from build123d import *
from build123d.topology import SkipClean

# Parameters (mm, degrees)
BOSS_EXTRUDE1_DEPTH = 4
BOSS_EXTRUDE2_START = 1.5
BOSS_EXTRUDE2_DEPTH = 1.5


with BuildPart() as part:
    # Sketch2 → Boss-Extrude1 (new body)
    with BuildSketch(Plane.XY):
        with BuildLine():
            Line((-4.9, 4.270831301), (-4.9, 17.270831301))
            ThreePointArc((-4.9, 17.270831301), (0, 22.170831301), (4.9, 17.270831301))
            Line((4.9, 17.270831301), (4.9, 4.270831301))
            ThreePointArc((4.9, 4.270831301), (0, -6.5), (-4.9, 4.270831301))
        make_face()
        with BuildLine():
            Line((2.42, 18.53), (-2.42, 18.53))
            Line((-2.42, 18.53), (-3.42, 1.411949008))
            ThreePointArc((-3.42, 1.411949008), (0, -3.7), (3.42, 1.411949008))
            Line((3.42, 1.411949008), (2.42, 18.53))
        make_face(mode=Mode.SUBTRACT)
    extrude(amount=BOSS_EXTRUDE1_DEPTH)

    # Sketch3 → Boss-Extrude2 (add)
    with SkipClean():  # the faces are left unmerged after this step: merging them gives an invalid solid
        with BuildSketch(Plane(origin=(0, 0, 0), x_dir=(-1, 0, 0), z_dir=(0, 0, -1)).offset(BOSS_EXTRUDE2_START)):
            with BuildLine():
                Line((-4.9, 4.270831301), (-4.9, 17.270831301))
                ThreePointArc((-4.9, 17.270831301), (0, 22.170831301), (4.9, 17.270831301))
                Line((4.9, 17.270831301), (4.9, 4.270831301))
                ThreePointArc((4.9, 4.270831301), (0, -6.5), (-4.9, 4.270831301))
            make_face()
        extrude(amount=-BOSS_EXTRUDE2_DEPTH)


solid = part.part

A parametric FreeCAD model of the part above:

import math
import FreeCAD as App
import Part
import Sketcher
from FreeCAD import Vector
Q = App.Units.Quantity

doc = App.newDocument("Part")
body = doc.addObject("PartDesign::Body", "Body")

# Sketch on XY plane
sketch1 = body.newObject("Sketcher::SketchObject", "Sketch")
sketch1.AttachmentSupport = (doc.getObject("XY_Plane"), [""])
sketch1.MapMode = "FlatFace"
sketch1.addGeometry(Part.LineSegment(Vector(-4.9, 17.3, 0), Vector(-4.9, 4.3, 0)), False)
sketch1.addGeometry(Part.ArcOfCircle(Part.Circle(Vector(0, 0, 0), Vector(0, 0, 1), 6.5), math.radians(139), math.radians(401)), False)
sketch1.addGeometry(Part.LineSegment(Vector(4.9, 4.3, 0), Vector(4.9, 17.3, 0)), False)
sketch1.addGeometry(Part.ArcOfCircle(Part.Circle(Vector(0, 17.3, 0), Vector(0, 0, 1), 4.9), math.radians(0), math.radians(180)), False)
sketch1.addGeometry(Part.LineSegment(Vector(2.4, 18.5, 0), Vector(3.4, 1.4, 0)), False)
sketch1.addGeometry(Part.ArcOfCircle(Part.Circle(Vector(0, 0, 0), Vector(0, 0, 1), 3.7), math.radians(158), math.radians(382)), False)
sketch1.addGeometry(Part.LineSegment(Vector(-3.4, 1.4, 0), Vector(-2.4, 18.5, 0)), False)
sketch1.addGeometry(Part.LineSegment(Vector(-2.4, 18.5, 0), Vector(2.4, 18.5, 0)), False)
sketch1.addConstraint(Sketcher.Constraint("Coincident", 0, 2, 1, 1))
sketch1.addConstraint(Sketcher.Constraint("Coincident", 1, 2, 2, 1))
sketch1.addConstraint(Sketcher.Constraint("Tangent", 2, 2, 3, 1))
sketch1.addConstraint(Sketcher.Constraint("Tangent", 3, 2, 0, 1))
sketch1.addConstraint(Sketcher.Constraint("Coincident", 4, 2, 5, 2))
sketch1.addConstraint(Sketcher.Constraint("Coincident", 5, 1, 6, 1))
sketch1.addConstraint(Sketcher.Constraint("Coincident", 6, 2, 7, 1))
sketch1.addConstraint(Sketcher.Constraint("Coincident", 7, 2, 4, 1))
sketch1.addConstraint(Sketcher.Constraint("Vertical", 0))
sketch1.addConstraint(Sketcher.Constraint("Vertical", 2))
sketch1.addConstraint(Sketcher.Constraint("Horizontal", 7))
sketch1.addConstraint(Sketcher.Constraint("Coincident", 1, 3, -1, 1))
sketch1.addConstraint(Sketcher.Constraint("Coincident", 5, 3, -1, 1))
sketch1.addConstraint(Sketcher.Constraint("PointOnObject", 3, 3, -2))
sketch1.addConstraint(Sketcher.Constraint("Horizontal", 4, 2, 5, 1))
sketch1.addConstraint(Sketcher.Constraint("Equal", 4, 6))
sketch1.addConstraint(Sketcher.Constraint("Radius", 1, Q("6.5 mm")))
sketch1.addConstraint(Sketcher.Constraint("Radius", 3, Q("4.9 mm")))
sketch1.addConstraint(Sketcher.Constraint("Radius", 5, Q("3.7 mm")))
sketch1.addConstraint(Sketcher.Constraint("DistanceY", 0, 2, 0, 1, Q("13 mm")))
sketch1.addConstraint(Sketcher.Constraint("DistanceX", 7, 1, 7, 2, Q("4.84 mm")))
sketch1.addConstraint(Sketcher.Constraint("DistanceX", -1, 1, 4, 2, Q("3.42 mm")))
sketch1.addConstraint(Sketcher.Constraint("DistanceY", -1, 1, 6, 2, Q("18.53 mm")))
pad1 = body.newObject("PartDesign::Pad", "Pad")
pad1.Profile = sketch1
pad1.Length = 4

# Sketch on XY plane
sketch2 = body.newObject("Sketcher::SketchObject", "Sketch001")
sketch2.AttachmentSupport = (doc.getObject("XY_Plane"), [""])
sketch2.MapMode = "FlatFace"
sketch2.AttachmentOffset = App.Placement(Vector(0, 0, -1.5), App.Rotation())
sketch2.addGeometry(Part.LineSegment(Vector(4.9, 17.3, 0), Vector(4.9, 4.3, 0)), False)
sketch2.addGeometry(Part.ArcOfCircle(Part.Circle(Vector(0, 0, 0), Vector(0, 0, 1), 6.5), math.radians(139), math.radians(401)), False)
sketch2.addGeometry(Part.LineSegment(Vector(-4.9, 4.3, 0), Vector(-4.9, 17.3, 0)), False)
sketch2.addGeometry(Part.ArcOfCircle(Part.Circle(Vector(0, 17.3, 0), Vector(0, 0, 1), 4.9), math.radians(0), math.radians(180)), False)
sketch2.addConstraint(Sketcher.Constraint("Coincident", 0, 2, 1, 2))
sketch2.addConstraint(Sketcher.Constraint("Coincident", 1, 1, 2, 1))
sketch2.addConstraint(Sketcher.Constraint("Tangent", 2, 2, 3, 2))
sketch2.addConstraint(Sketcher.Constraint("Tangent", 3, 1, 0, 1))
sketch2.addConstraint(Sketcher.Constraint("Vertical", 0))
sketch2.addConstraint(Sketcher.Constraint("Vertical", 2))
sketch2.addConstraint(Sketcher.Constraint("Coincident", 1, 3, -1, 1))
sketch2.addConstraint(Sketcher.Constraint("PointOnObject", 3, 3, -2))
sketch2.addConstraint(Sketcher.Constraint("Radius", 1, Q("6.5 mm")))
sketch2.addConstraint(Sketcher.Constraint("Radius", 3, Q("4.9 mm")))
sketch2.addConstraint(Sketcher.Constraint("DistanceY", 0, 2, 0, 1, Q("13 mm")))
pad2 = body.newObject("PartDesign::Pad", "Pad001")
pad2.Profile = sketch2
pad2.Length = 1.5

doc.recompute()
